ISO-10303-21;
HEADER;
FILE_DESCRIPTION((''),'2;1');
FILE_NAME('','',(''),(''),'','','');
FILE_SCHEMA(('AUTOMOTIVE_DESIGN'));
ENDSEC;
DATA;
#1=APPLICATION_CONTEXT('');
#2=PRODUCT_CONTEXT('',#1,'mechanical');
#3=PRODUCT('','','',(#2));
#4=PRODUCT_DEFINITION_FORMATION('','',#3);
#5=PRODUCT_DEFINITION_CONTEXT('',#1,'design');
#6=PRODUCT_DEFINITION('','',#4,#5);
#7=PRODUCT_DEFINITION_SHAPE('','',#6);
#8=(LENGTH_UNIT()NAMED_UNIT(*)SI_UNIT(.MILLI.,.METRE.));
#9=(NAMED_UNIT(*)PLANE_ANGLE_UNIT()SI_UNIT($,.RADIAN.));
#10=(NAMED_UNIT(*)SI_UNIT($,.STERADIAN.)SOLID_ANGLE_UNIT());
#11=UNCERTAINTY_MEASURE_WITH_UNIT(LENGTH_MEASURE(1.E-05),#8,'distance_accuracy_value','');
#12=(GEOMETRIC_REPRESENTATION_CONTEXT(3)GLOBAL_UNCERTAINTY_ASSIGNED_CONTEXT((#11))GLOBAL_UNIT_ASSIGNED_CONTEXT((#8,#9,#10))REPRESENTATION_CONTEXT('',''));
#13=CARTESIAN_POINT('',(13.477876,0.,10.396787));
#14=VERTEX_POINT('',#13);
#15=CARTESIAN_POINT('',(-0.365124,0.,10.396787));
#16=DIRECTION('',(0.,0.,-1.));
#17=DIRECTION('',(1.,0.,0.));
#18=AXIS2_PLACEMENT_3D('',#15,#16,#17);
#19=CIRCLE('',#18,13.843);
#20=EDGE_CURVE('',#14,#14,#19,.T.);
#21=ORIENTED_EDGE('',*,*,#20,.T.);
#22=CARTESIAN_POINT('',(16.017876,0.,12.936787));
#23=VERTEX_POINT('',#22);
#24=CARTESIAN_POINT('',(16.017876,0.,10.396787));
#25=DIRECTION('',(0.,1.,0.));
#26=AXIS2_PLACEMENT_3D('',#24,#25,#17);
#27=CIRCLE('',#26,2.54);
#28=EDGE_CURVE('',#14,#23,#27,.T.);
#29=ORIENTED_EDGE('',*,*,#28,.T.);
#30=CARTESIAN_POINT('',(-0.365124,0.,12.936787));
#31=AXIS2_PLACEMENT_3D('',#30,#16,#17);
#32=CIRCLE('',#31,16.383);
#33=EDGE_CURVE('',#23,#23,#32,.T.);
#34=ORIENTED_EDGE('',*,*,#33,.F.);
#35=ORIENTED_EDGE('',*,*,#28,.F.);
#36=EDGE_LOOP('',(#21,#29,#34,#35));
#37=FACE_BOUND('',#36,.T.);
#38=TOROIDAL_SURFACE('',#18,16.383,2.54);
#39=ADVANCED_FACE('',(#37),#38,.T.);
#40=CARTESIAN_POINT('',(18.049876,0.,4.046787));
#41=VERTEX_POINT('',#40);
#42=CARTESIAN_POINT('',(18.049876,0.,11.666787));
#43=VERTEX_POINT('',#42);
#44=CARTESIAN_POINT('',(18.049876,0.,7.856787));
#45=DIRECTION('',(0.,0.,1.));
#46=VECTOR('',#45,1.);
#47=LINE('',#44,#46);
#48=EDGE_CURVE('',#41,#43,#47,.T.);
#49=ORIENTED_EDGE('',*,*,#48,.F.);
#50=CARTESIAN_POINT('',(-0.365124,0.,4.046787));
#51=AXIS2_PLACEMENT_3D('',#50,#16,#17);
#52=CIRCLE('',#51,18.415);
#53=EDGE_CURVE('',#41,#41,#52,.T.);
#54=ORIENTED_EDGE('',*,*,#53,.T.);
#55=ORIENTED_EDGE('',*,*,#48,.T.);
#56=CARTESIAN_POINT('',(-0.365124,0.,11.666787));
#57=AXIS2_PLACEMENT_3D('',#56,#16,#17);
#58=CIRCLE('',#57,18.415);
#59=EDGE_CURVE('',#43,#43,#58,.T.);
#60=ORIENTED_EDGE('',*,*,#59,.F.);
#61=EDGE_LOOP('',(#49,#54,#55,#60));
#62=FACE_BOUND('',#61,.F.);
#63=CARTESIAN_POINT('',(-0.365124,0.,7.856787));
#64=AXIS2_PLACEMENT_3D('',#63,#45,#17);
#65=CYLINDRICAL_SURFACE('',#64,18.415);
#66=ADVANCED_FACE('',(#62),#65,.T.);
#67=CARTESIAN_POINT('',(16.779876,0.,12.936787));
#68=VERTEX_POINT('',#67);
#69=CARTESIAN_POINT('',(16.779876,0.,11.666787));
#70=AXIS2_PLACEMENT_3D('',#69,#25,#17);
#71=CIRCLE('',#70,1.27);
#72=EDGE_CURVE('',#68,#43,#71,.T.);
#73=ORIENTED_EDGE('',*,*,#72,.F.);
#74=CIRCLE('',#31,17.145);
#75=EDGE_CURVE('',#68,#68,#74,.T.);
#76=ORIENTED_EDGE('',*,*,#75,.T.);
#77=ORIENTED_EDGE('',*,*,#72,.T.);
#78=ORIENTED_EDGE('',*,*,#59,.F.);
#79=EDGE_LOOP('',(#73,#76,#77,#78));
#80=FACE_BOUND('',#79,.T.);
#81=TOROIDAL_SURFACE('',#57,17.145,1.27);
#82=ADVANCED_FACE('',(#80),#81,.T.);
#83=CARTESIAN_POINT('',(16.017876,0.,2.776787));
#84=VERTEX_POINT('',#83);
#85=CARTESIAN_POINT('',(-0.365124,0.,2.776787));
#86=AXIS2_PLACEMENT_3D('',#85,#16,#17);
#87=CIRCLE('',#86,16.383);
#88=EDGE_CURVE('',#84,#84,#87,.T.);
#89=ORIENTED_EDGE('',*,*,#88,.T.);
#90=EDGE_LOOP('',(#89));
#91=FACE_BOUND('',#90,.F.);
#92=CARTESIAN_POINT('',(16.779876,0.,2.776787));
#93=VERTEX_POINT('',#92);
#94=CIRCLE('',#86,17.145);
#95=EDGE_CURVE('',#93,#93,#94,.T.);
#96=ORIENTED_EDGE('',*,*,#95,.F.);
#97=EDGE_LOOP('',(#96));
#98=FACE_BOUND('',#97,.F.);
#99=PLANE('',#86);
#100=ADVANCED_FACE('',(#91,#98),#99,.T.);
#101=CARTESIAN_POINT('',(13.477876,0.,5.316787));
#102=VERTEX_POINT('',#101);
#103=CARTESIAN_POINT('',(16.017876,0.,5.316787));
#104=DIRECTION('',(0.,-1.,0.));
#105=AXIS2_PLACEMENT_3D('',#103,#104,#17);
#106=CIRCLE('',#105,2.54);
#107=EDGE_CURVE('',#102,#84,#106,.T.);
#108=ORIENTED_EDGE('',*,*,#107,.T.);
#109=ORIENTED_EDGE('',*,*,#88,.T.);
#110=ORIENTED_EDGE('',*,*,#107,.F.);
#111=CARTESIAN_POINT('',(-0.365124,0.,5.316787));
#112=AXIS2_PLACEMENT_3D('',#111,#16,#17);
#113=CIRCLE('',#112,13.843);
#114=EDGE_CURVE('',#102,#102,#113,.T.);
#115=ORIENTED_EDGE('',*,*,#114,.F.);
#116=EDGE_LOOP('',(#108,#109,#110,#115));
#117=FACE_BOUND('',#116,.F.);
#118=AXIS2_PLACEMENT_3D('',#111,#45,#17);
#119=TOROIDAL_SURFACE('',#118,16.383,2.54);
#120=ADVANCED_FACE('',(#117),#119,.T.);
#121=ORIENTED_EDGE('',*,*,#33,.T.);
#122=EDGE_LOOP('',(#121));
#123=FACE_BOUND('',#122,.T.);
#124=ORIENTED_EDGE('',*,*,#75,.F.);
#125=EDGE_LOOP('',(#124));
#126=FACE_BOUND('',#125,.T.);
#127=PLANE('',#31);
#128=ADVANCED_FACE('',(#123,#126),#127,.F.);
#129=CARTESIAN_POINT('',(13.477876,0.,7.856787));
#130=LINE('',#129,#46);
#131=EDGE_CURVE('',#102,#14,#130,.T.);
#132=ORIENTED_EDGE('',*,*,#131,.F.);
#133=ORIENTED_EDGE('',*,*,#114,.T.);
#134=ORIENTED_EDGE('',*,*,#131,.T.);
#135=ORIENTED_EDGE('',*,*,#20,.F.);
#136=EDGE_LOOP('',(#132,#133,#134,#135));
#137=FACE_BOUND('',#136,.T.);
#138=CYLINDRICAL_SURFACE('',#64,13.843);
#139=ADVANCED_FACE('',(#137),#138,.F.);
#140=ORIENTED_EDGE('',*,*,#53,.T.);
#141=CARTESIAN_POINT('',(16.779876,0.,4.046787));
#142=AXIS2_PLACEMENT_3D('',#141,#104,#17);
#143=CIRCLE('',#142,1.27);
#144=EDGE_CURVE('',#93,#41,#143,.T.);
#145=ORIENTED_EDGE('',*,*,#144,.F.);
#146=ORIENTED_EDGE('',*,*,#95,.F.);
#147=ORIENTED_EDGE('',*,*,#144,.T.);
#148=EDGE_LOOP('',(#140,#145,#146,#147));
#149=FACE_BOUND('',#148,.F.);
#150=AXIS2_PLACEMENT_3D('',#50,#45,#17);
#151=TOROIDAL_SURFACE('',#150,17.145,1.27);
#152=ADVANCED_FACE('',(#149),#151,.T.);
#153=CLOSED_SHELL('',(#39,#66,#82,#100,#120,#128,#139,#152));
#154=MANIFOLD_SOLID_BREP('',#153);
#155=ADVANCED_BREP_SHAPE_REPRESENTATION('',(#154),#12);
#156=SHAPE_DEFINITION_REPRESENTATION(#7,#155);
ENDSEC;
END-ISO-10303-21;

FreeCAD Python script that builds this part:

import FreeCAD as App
import Part
import Sketcher
Q = App.Units.Quantity


def edges_at(feature, points):
    """Names of the edges that pass closest to the given points."""
    edges = feature.Shape.Edges
    near = lambda p: min(range(len(edges)), key=lambda i: edges[i].distToShape(Part.Vertex(*p))[0])
    return sorted({f"Edge{near(p) + 1}" for p in points})


def add_polygon(sketch, points):
    """Adds a closed chain of lines whose ends are joined by coincident constraints."""
    first, n = sketch.GeometryCount, len(points)
    for a, b in zip(points, points[1:] + points[:1]):
        sketch.addGeometry(Part.LineSegment(App.Vector(*a, 0), App.Vector(*b, 0)), False)
    for i in range(n):
        sketch.addConstraint(Sketcher.Constraint("Coincident", first + i, 2, first + (i + 1) % n, 1))

doc = App.newDocument("Part")
body = doc.addObject("PartDesign::Body", "Body")

sketch1 = body.newObject("Sketcher::SketchObject", "Sketch")
sketch1.AttachmentSupport = (doc.getObject("XZ_Plane"), [""])
sketch1.MapMode = "FlatFace"
add_polygon(sketch1, [(13.5, 12.9), (13.5, 2.8), (18, 2.8), (18, 12.9)])
sketch1.addGeometry(Part.LineSegment(App.Vector(-0.4, 12.9, 0), App.Vector(-0.4, 2.8, 0)), True)
sketch1.addConstraint(Sketcher.Constraint("Vertical", 0))
sketch1.addConstraint(Sketcher.Constraint("Horizontal", 1))
sketch1.addConstraint(Sketcher.Constraint("Vertical", 2))
sketch1.addConstraint(Sketcher.Constraint("Horizontal", 3))
sketch1.addConstraint(Sketcher.Constraint("Vertical", 4))
sketch1.addConstraint(Sketcher.Constraint("Horizontal", 3, 2, 4, 1))
sketch1.addConstraint(Sketcher.Constraint("Horizontal", 1, 2, 4, 2))
sketch1.addConstraint(Sketcher.Constraint("DistanceY", 0, 2, 0, 1, Q("0.4 in")))
sketch1.addConstraint(Sketcher.Constraint("DistanceX", 1, 1, 1, 2, Q("0.18 in")))
sketch1.addConstraint(Sketcher.Constraint("DistanceX", 4, 1, 3, 2, Q("0.545 in")))
sketch1.addConstraint(Sketcher.Constraint("DistanceX", -1, 1, 0, 2, Q("13.477876 mm")))
sketch1.addConstraint(Sketcher.Constraint("DistanceY", -1, 1, 0, 2, Q("2.776787 mm")))
revolution = body.newObject("PartDesign::Revolution", "Revolution")
revolution.Profile = sketch1
revolution.ReferenceAxis = (sketch1, ["Axis0"])
revolution.Angle = 360
doc.recompute()

fillet = body.newObject("PartDesign::Fillet", "Fillet")
fillet.Base = (revolution, edges_at(revolution, [(-14.208, 0, 12.937), (-14.208, 0, 2.777)]))
fillet.Radius = Q("0.1 in")
doc.recompute()

fillet2 = body.newObject("PartDesign::Fillet", "Fillet001")
fillet2.Base = (fillet, edges_at(fillet, [(-18.78, 0, 12.937), (-18.78, 0, 2.777)]))
fillet2.Radius = Q("0.05 in")

doc.recompute()
